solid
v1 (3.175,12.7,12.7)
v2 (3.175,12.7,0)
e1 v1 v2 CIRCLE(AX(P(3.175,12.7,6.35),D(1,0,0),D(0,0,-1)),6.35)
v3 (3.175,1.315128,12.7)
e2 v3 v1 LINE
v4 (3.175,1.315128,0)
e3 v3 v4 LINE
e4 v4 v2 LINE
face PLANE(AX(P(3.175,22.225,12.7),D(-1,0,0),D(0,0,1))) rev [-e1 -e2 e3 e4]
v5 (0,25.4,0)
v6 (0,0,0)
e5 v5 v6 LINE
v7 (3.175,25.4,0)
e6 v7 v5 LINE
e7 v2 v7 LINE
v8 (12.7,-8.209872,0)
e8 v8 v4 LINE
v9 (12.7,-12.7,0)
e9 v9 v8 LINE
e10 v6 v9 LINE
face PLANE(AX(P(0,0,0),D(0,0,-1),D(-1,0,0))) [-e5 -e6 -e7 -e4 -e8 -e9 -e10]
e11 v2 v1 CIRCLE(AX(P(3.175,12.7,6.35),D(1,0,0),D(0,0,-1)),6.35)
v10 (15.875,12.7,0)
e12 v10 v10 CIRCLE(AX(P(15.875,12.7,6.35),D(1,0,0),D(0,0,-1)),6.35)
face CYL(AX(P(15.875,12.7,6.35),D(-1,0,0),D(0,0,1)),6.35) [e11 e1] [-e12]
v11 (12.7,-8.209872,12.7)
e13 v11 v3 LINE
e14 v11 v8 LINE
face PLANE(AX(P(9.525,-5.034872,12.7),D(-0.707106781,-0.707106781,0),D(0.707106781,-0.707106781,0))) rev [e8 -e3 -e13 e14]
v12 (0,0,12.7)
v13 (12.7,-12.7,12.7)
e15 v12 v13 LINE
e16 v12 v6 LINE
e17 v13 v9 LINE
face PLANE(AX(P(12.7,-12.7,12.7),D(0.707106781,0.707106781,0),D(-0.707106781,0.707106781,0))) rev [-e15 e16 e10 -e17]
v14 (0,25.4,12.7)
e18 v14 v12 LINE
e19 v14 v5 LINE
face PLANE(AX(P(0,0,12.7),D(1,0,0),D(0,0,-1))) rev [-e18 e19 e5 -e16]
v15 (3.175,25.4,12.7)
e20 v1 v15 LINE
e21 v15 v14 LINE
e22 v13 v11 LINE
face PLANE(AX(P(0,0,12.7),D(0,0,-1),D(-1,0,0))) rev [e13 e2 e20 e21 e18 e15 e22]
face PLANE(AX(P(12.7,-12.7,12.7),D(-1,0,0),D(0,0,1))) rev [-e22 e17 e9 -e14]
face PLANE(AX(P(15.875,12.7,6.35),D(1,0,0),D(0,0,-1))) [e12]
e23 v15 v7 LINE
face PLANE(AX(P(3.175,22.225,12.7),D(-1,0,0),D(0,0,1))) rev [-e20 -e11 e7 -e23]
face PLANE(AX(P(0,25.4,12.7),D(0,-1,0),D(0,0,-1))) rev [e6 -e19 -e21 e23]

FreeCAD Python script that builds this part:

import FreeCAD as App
import Part
import Sketcher
Q = App.Units.Quantity

doc = App.newDocument("Part")
params = doc.addObject("Spreadsheet::Sheet", "Params")
for row, (alias, value) in enumerate([
    ("sketch1_height", "1 in"),
    ("sketch1_width", "0.125 in"),
    ("pad1_length", "0.5 in"),
    ("sketch2_diameter", "0.5 in"),
    ("pad2_length", "0.5 in"),
], start=1):
    params.set(f"A{row}", alias)
    params.set(f"B{row}", "=" + value)
    params.setAlias(f"B{row}", alias)

body = doc.addObject("PartDesign::Body", "Body")

sketch1 = body.newObject("Sketcher::SketchObject", "Sketch")
sketch1.AttachmentSupport = (doc.getObject("XY_Plane"), [""])
sketch1.MapMode = "FlatFace"
sketch1.addGeometry([
    Part.LineSegment(App.Vector(0, 25.4, 0), App.Vector(0, 0, 0)),
    Part.LineSegment(App.Vector(0, 0, 0), App.Vector(12.7, -12.7, 0)),
    Part.LineSegment(App.Vector(12.7, -12.7, 0), App.Vector(12.7, -8.2, 0)),
    Part.LineSegment(App.Vector(12.7, -8.2, 0), App.Vector(3.2, 1.3, 0)),
    Part.LineSegment(App.Vector(3.2, 1.3, 0), App.Vector(3.2, 25.4, 0)),
    Part.LineSegment(App.Vector(3.2, 25.4, 0), App.Vector(0, 25.4, 0)),
], False)
sketch1.addConstraint([
    Sketcher.Constraint("Coincident", 0, 2, 1, 1),
    Sketcher.Constraint("Coincident", 1, 2, 2, 1),
    Sketcher.Constraint("Coincident", 2, 2, 3, 1),
    Sketcher.Constraint("Coincident", 3, 2, 4, 1),
    Sketcher.Constraint("Coincident", 4, 2, 5, 1),
    Sketcher.Constraint("Coincident", 5, 2, 0, 1),
    Sketcher.Constraint("Vertical", 0),
    Sketcher.Constraint("Vertical", 2),
    Sketcher.Constraint("Vertical", 4),
    Sketcher.Constraint("Horizontal", 5),
    Sketcher.Constraint("Coincident", 0, 2, -1, 1),
    Sketcher.Constraint("Parallel", 1, 3),
    Sketcher.Constraint("DistanceY", 0, 2, 0, 1, Q("1 in")),
    Sketcher.Constraint("Angle", 1, Q("-45 deg")),
    Sketcher.Constraint("DistanceX", -1, 1, 1, 2, Q("0.5 in")),
    Sketcher.Constraint("DistanceX", 5, 2, 5, 1, Q("0.125 in")),
    Sketcher.Constraint("DistanceY", 2, 1, 2, 2, Q("4.490128 mm")),
])
sketch1.setExpression("Constraints[12]", "Params.sketch1_height")
sketch1.setExpression("Constraints[15]", "Params.sketch1_width")
pad1 = body.newObject("PartDesign::Pad", "Pad")
pad1.Profile = sketch1
pad1.setExpression("Length", "Params.pad1_length")

sketch2 = body.newObject("Sketcher::SketchObject", "Sketch001")
sketch2.AttachmentSupport = (doc.getObject("YZ_Plane"), [""])
sketch2.MapMode = "FlatFace"
sketch2.AttachmentOffset = App.Placement(App.Vector(0, 0, 0.125 * 25.4), App.Rotation())
sketch2.addGeometry(Part.Circle(App.Vector(13, 6, 0), App.Vector(0, 0, 1), 6), False)
sketch2.addConstraint([
    Sketcher.Constraint("Diameter", 0, Q("0.5 in")),
    Sketcher.Constraint("DistanceX", -1, 1, 0, 3, Q("0.5 in")),
    Sketcher.Constraint("DistanceY", -1, 1, 0, 3, Q("0.25 in")),
])
sketch2.setExpression("Constraints[0]", "Params.sketch2_diameter")
pad2 = body.newObject("PartDesign::Pad", "Pad001")
pad2.Profile = sketch2
pad2.setExpression("Length", "Params.pad2_length")

doc.recompute()
